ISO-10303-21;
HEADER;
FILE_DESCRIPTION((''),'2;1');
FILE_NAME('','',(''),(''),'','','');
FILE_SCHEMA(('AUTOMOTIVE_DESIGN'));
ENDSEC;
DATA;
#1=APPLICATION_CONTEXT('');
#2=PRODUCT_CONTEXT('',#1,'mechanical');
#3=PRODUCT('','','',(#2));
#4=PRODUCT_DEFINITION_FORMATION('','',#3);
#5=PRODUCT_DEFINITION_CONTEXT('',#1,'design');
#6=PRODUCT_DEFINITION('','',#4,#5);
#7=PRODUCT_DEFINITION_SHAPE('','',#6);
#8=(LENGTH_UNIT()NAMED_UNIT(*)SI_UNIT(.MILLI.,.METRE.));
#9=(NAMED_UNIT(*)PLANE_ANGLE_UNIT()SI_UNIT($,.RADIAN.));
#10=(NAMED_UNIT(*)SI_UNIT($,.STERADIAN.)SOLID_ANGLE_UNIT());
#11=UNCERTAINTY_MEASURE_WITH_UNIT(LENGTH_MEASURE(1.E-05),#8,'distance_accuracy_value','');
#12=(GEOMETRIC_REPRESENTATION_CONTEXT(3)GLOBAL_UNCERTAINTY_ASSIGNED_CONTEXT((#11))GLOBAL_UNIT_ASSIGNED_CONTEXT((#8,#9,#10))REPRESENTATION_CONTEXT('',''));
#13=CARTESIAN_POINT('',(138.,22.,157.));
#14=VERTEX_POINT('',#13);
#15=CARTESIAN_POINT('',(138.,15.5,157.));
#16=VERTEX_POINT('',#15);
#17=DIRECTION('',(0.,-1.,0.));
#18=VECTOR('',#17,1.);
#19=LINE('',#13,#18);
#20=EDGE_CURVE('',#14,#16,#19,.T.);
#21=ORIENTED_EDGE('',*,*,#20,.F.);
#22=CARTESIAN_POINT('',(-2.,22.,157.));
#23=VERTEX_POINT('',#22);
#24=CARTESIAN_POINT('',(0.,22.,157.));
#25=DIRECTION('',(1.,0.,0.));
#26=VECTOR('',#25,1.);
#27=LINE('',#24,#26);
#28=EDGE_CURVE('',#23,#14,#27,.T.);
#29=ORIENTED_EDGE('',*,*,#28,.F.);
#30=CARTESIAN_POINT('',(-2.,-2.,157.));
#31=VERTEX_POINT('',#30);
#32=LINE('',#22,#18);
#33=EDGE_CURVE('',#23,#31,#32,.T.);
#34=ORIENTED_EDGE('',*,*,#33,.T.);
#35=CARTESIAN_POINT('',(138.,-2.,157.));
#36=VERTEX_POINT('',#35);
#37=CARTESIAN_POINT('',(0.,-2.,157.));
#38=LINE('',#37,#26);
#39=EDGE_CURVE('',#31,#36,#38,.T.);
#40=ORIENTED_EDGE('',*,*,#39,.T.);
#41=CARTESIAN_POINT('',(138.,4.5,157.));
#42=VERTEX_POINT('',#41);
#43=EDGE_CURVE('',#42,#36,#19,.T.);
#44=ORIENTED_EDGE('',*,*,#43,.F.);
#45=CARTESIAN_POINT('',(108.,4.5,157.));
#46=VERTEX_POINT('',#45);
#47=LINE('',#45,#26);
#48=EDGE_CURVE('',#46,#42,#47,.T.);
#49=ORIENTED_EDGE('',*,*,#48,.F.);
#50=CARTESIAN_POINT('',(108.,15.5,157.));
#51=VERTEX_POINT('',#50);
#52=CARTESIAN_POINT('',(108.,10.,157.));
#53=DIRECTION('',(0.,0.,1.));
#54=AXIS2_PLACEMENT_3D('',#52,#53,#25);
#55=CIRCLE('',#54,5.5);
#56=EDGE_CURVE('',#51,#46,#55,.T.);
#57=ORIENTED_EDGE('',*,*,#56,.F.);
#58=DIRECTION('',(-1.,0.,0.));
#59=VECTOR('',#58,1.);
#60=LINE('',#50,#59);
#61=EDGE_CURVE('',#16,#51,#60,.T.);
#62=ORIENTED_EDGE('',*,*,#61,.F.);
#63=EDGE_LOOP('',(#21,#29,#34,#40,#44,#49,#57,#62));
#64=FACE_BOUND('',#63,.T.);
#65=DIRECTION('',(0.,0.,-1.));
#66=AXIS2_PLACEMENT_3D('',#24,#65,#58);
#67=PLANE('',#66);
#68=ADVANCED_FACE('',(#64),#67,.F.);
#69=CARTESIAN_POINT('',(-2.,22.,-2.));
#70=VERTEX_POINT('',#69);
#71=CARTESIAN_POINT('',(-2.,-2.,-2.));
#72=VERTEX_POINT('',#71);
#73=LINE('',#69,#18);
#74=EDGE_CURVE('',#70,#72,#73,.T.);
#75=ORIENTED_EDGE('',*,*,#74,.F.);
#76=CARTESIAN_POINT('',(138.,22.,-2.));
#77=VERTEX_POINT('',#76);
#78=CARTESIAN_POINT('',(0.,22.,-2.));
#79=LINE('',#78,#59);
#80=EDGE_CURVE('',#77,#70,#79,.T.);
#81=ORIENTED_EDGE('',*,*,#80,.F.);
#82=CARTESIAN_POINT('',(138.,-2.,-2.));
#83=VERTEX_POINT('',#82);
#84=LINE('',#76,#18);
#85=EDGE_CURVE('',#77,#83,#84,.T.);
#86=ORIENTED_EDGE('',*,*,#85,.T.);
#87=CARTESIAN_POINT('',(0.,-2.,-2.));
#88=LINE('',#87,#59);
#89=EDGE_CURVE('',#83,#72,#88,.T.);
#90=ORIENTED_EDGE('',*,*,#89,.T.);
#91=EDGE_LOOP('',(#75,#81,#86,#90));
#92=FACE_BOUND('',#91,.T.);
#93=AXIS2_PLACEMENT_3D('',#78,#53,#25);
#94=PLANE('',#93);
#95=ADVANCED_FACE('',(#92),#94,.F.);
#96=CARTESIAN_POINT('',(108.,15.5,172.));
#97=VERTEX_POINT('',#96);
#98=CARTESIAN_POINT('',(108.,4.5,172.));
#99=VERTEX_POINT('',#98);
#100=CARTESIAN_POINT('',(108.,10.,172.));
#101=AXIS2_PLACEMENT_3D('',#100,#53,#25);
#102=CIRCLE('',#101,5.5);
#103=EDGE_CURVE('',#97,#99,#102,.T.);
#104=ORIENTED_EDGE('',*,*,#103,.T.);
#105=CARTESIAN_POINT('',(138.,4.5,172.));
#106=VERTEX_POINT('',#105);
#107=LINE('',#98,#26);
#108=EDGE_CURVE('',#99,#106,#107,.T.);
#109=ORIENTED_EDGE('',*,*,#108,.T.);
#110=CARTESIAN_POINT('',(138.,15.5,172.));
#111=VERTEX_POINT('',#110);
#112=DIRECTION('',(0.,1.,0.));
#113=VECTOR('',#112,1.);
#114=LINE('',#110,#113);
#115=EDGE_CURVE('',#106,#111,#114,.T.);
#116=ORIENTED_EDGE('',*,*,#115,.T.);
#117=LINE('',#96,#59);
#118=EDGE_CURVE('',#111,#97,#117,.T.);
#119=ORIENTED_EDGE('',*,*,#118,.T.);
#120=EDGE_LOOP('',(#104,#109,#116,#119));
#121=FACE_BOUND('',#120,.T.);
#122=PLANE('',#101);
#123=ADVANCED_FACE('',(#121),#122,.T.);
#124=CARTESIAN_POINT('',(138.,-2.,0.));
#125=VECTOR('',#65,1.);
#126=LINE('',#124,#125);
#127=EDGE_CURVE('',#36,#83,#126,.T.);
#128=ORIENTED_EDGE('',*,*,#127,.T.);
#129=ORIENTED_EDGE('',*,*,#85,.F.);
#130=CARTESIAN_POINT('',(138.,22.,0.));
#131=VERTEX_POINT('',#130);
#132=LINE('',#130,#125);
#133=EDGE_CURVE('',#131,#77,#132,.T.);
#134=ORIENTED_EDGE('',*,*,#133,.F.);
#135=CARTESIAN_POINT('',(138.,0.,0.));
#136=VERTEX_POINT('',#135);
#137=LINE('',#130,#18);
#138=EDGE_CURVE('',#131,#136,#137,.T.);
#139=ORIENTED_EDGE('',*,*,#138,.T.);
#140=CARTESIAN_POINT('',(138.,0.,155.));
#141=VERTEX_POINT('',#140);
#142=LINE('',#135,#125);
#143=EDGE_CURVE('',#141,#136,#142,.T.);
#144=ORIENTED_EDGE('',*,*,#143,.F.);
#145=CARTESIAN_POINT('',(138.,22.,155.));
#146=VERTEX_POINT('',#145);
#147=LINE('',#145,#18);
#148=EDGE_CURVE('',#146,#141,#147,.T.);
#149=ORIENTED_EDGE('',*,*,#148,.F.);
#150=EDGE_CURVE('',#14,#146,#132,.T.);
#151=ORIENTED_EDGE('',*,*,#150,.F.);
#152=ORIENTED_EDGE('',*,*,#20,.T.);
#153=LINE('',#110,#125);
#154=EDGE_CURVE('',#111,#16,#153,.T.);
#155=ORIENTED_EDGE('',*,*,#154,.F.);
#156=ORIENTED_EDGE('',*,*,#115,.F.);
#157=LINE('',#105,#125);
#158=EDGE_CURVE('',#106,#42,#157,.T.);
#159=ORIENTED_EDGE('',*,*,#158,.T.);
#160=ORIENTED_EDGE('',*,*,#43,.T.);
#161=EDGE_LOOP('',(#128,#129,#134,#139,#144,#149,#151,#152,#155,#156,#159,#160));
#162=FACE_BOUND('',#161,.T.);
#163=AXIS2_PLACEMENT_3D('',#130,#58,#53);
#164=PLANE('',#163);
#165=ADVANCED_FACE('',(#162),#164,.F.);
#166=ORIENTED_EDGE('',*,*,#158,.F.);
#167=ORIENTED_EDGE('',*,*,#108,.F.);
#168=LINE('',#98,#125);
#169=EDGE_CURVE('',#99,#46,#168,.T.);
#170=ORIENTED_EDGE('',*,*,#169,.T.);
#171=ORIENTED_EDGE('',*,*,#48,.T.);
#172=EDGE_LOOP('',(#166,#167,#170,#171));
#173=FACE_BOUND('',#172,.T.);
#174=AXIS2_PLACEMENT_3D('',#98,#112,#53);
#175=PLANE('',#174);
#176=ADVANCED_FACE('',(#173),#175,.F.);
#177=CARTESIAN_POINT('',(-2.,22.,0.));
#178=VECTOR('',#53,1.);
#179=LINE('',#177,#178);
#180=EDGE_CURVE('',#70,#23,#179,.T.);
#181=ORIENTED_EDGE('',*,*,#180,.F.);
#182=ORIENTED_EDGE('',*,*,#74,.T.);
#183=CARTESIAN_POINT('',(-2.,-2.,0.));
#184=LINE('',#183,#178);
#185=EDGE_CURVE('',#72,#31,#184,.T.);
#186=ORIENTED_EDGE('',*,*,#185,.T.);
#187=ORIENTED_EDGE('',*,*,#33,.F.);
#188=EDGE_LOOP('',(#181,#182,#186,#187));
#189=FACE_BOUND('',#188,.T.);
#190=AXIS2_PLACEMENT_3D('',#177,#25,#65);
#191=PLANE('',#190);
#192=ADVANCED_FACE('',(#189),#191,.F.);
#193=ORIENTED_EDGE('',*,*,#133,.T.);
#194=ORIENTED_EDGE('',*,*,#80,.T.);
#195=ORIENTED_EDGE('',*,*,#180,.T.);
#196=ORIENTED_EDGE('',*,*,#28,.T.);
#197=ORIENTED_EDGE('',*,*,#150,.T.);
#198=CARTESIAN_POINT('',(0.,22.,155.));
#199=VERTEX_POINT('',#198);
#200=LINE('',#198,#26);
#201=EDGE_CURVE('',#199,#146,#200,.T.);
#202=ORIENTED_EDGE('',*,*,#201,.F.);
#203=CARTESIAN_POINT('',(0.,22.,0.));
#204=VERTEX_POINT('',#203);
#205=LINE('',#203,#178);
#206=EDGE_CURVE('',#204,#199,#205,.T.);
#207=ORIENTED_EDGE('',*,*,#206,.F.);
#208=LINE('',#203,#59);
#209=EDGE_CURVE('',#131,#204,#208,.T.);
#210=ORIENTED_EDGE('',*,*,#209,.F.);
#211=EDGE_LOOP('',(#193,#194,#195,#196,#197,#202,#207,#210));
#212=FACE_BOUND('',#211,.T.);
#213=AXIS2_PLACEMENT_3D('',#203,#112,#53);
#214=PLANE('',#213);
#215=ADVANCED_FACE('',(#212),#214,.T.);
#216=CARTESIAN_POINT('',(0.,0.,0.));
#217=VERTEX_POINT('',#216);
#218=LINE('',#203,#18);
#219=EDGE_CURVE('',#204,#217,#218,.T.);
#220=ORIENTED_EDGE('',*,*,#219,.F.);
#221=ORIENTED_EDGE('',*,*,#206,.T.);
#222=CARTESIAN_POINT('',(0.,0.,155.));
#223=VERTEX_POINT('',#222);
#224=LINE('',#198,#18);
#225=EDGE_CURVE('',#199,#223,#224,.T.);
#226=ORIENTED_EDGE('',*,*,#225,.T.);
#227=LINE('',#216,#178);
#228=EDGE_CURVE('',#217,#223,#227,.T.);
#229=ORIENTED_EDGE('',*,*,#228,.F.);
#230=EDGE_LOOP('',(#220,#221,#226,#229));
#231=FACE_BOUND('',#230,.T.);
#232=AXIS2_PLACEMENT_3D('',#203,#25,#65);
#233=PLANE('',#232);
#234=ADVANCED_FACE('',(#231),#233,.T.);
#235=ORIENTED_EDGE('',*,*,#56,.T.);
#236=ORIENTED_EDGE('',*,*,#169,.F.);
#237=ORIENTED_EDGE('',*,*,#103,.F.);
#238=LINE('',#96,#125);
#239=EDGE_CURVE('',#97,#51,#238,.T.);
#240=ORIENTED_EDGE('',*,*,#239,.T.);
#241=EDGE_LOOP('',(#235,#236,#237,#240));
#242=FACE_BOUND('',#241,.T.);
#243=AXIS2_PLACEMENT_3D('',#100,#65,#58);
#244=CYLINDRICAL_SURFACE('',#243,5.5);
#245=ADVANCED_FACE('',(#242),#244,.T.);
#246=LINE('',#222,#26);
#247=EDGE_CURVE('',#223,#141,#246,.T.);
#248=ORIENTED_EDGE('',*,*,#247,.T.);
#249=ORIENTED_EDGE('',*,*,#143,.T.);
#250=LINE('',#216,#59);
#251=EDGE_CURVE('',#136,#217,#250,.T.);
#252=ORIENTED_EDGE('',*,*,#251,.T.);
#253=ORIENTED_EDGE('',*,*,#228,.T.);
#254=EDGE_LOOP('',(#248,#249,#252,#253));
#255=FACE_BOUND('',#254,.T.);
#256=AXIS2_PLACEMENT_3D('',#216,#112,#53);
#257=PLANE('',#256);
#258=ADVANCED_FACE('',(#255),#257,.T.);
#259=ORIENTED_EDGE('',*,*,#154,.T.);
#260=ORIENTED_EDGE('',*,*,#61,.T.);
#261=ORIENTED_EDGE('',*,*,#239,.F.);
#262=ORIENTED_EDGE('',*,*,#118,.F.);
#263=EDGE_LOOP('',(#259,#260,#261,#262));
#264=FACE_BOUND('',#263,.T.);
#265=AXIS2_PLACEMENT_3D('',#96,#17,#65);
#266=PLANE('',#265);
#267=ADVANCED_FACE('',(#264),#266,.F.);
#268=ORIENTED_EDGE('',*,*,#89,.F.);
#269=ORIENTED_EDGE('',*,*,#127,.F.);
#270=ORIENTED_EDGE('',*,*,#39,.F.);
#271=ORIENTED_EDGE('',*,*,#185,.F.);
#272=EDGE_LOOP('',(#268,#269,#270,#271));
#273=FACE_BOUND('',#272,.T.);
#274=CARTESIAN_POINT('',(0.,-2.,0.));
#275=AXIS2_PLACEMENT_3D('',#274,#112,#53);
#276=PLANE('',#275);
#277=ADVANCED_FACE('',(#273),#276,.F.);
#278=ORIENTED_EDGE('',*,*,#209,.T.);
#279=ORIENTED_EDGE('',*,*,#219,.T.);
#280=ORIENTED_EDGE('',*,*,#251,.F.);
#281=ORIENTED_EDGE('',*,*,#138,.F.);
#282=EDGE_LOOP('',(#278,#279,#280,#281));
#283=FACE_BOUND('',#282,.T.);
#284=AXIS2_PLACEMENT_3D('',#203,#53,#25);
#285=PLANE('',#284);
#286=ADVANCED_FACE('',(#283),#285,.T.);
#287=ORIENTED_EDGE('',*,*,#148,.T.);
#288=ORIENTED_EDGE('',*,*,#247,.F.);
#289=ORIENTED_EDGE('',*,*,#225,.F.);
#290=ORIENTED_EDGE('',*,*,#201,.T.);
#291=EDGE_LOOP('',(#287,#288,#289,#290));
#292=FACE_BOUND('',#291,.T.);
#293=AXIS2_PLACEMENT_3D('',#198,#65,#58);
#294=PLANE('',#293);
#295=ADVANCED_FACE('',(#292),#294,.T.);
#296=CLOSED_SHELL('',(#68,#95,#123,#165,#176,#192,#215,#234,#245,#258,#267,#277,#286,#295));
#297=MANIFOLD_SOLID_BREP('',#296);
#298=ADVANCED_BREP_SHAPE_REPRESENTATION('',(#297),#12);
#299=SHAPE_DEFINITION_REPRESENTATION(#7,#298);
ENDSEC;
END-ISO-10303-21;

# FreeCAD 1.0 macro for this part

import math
import FreeCAD as App
import Part
import Sketcher
from FreeCAD import Vector


def faces_at(feature, points):
    """Names of the faces that lie closest to the given points."""
    faces = feature.Shape.Faces
    near = lambda p: min(range(len(faces)), key=lambda i: faces[i].distToShape(Part.Vertex(*p))[0])
    return sorted({f"Face{near(p) + 1}" for p in points})

doc = App.newDocument("Part")
params = doc.addObject("Spreadsheet::Sheet", "Params")
for row, (alias, value) in enumerate([
    ("sketch1_width", "138 mm"),
    ("sketch1_height", "155 mm"),
    ("pad1_length", "22 mm"),
    ("thickness_wall", "2 mm"),
    ("sketch2_radius", "5.5 mm"),
    ("sketch2_width", "30 mm"),
    ("pad2_length", "15 mm"),
], start=1):
    params.set(f"A{row}", alias)
    params.set(f"B{row}", "=" + value)
    params.setAlias(f"B{row}", alias)

body = doc.addObject("PartDesign::Body", "Body")

# Sketch on XZ plane
sketch1 = body.newObject("Sketcher::SketchObject", "Sketch")
sketch1.AttachmentSupport = (doc.getObject("XZ_Plane"), [""])
sketch1.MapMode = "FlatFace"
sketch1.addGeometry([
    Part.LineSegment(Vector(0, 0, 0), Vector(0, 155, 0)),
    Part.LineSegment(Vector(0, 155, 0), Vector(138, 155, 0)),
    Part.LineSegment(Vector(138, 155, 0), Vector(138, 0, 0)),
    Part.LineSegment(Vector(138, 0, 0), Vector(0, 0, 0)),
], False)
sketch1.addConstraint([
    Sketcher.Constraint("Coincident", 0, 2, 1, 1),
    Sketcher.Constraint("Coincident", 1, 2, 2, 1),
    Sketcher.Constraint("Coincident", 2, 2, 3, 1),
    Sketcher.Constraint("Coincident", 3, 2, 0, 1),
    Sketcher.Constraint("Vertical", 0),
    Sketcher.Constraint("Horizontal", 1),
    Sketcher.Constraint("Vertical", 2),
    Sketcher.Constraint("Horizontal", 3),
    Sketcher.Constraint("Coincident", 3, 2, -1, 1),
    Sketcher.Constraint("DistanceX", 1, 1, 1, 2, 138.0),
    Sketcher.Constraint("DistanceY", 0, 1, 0, 2, 155.0),
])
sketch1.setExpression("Constraints[9]", "Params.sketch1_width")
sketch1.setExpression("Constraints[10]", "Params.sketch1_height")
pad1 = body.newObject("PartDesign::Pad", "Pad")
pad1.Profile = sketch1
pad1.setExpression("Length", "Params.pad1_length")
pad1.Reversed = True
doc.recompute()

thickness = body.newObject("PartDesign::Thickness", "Thickness")
thickness.Base = (pad1, faces_at(pad1, [(138, 11, 77.5), (69, 22, 77.5)]))
thickness.setExpression("Value", "Params.thickness_wall")
thickness.Reversed = False
thickness.Join = "Intersection"

# Sketch on XY plane
sketch2 = body.newObject("Sketcher::SketchObject", "Sketch001")
sketch2.AttachmentSupport = (doc.getObject("XY_Plane"), [""])
sketch2.MapMode = "FlatFace"
sketch2.AttachmentOffset = App.Placement(Vector(0, 0, 157), App.Rotation())
sketch2.addGeometry([
    Part.LineSegment(Vector(138, 16, 0), Vector(108, 16, 0)),
    Part.ArcOfCircle(Part.Circle(Vector(108, 10, 0), Vector(0, 0, 1), 6), math.radians(90), math.radians(270)),
    Part.LineSegment(Vector(108, 4, 0), Vector(138, 4, 0)),
    Part.LineSegment(Vector(138, 4, 0), Vector(138, 16, 0)),
], False)
sketch2.addConstraint([
    Sketcher.Constraint("Tangent", 0, 2, 1, 1),
    Sketcher.Constraint("Tangent", 1, 2, 2, 1),
    Sketcher.Constraint("Coincident", 2, 2, 3, 1),
    Sketcher.Constraint("Coincident", 3, 2, 0, 1),
    Sketcher.Constraint("Horizontal", 0),
    Sketcher.Constraint("Horizontal", 2),
    Sketcher.Constraint("Vertical", 3),
    Sketcher.Constraint("Radius", 1, 5.5),
    Sketcher.Constraint("DistanceX", 0, 2, 0, 1, 30.0),
    Sketcher.Constraint("DistanceX", -1, 1, 1, 3, 108.0),
    Sketcher.Constraint("DistanceY", -1, 1, 1, 3, 10.0),
])
sketch2.setExpression("Constraints[7]", "Params.sketch2_radius")
sketch2.setExpression("Constraints[8]", "Params.sketch2_width")
pad2 = body.newObject("PartDesign::Pad", "Pad001")
pad2.Profile = sketch2
pad2.setExpression("Length", "Params.pad2_length")

doc.recompute()
